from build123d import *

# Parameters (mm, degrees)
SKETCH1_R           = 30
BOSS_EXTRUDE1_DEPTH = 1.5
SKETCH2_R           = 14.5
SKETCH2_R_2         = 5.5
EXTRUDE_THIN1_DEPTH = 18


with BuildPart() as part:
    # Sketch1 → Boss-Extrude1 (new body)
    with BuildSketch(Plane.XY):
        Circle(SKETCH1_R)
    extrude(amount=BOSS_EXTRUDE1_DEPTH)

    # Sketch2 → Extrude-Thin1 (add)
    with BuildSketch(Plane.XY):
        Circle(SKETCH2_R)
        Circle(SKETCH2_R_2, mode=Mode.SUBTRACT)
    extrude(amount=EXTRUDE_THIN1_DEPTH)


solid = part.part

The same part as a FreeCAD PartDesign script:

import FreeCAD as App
import Part
import Sketcher
Q = App.Units.Quantity

doc = App.newDocument("Part")
body = doc.addObject("PartDesign::Body", "Body")

sketch1 = body.newObject("Sketcher::SketchObject", "Sketch")
sketch1.AttachmentSupport = (doc.getObject("XY_Plane"), [""])
sketch1.MapMode = "FlatFace"
sketch1.addGeometry(Part.Circle(App.Vector(0, 0, 0), App.Vector(0, 0, 1), 30), False)
sketch1.addConstraint([
    Sketcher.Constraint("Coincident", 0, 3, -1, 1),
    Sketcher.Constraint("Diameter", 0, Q("60 mm")),
])
pad1 = body.newObject("PartDesign::Pad", "Pad")
pad1.Profile = sketch1
pad1.Length = 1.5

sketch2 = body.newObject("Sketcher::SketchObject", "Sketch001")
sketch2.AttachmentSupport = (doc.getObject("XY_Plane"), [""])
sketch2.MapMode = "FlatFace"
sketch2.addGeometry([
    Part.Circle(App.Vector(0, 0, 0), App.Vector(0, 0, 1), 14),
    Part.Circle(App.Vector(0, 0, 0), App.Vector(0, 0, 1), 6),
], False)
sketch2.addConstraint([
    Sketcher.Constraint("Coincident", 0, 3, -1, 1),
    Sketcher.Constraint("Coincident", 1, 3, -1, 1),
    Sketcher.Constraint("Diameter", 0, Q("29 mm")),
    Sketcher.Constraint("Diameter", 1, Q("11 mm")),
])
pad2 = body.newObject("PartDesign::Pad", "Pad001")
pad2.Profile = sketch2
pad2.Length = 18

doc.recompute()
